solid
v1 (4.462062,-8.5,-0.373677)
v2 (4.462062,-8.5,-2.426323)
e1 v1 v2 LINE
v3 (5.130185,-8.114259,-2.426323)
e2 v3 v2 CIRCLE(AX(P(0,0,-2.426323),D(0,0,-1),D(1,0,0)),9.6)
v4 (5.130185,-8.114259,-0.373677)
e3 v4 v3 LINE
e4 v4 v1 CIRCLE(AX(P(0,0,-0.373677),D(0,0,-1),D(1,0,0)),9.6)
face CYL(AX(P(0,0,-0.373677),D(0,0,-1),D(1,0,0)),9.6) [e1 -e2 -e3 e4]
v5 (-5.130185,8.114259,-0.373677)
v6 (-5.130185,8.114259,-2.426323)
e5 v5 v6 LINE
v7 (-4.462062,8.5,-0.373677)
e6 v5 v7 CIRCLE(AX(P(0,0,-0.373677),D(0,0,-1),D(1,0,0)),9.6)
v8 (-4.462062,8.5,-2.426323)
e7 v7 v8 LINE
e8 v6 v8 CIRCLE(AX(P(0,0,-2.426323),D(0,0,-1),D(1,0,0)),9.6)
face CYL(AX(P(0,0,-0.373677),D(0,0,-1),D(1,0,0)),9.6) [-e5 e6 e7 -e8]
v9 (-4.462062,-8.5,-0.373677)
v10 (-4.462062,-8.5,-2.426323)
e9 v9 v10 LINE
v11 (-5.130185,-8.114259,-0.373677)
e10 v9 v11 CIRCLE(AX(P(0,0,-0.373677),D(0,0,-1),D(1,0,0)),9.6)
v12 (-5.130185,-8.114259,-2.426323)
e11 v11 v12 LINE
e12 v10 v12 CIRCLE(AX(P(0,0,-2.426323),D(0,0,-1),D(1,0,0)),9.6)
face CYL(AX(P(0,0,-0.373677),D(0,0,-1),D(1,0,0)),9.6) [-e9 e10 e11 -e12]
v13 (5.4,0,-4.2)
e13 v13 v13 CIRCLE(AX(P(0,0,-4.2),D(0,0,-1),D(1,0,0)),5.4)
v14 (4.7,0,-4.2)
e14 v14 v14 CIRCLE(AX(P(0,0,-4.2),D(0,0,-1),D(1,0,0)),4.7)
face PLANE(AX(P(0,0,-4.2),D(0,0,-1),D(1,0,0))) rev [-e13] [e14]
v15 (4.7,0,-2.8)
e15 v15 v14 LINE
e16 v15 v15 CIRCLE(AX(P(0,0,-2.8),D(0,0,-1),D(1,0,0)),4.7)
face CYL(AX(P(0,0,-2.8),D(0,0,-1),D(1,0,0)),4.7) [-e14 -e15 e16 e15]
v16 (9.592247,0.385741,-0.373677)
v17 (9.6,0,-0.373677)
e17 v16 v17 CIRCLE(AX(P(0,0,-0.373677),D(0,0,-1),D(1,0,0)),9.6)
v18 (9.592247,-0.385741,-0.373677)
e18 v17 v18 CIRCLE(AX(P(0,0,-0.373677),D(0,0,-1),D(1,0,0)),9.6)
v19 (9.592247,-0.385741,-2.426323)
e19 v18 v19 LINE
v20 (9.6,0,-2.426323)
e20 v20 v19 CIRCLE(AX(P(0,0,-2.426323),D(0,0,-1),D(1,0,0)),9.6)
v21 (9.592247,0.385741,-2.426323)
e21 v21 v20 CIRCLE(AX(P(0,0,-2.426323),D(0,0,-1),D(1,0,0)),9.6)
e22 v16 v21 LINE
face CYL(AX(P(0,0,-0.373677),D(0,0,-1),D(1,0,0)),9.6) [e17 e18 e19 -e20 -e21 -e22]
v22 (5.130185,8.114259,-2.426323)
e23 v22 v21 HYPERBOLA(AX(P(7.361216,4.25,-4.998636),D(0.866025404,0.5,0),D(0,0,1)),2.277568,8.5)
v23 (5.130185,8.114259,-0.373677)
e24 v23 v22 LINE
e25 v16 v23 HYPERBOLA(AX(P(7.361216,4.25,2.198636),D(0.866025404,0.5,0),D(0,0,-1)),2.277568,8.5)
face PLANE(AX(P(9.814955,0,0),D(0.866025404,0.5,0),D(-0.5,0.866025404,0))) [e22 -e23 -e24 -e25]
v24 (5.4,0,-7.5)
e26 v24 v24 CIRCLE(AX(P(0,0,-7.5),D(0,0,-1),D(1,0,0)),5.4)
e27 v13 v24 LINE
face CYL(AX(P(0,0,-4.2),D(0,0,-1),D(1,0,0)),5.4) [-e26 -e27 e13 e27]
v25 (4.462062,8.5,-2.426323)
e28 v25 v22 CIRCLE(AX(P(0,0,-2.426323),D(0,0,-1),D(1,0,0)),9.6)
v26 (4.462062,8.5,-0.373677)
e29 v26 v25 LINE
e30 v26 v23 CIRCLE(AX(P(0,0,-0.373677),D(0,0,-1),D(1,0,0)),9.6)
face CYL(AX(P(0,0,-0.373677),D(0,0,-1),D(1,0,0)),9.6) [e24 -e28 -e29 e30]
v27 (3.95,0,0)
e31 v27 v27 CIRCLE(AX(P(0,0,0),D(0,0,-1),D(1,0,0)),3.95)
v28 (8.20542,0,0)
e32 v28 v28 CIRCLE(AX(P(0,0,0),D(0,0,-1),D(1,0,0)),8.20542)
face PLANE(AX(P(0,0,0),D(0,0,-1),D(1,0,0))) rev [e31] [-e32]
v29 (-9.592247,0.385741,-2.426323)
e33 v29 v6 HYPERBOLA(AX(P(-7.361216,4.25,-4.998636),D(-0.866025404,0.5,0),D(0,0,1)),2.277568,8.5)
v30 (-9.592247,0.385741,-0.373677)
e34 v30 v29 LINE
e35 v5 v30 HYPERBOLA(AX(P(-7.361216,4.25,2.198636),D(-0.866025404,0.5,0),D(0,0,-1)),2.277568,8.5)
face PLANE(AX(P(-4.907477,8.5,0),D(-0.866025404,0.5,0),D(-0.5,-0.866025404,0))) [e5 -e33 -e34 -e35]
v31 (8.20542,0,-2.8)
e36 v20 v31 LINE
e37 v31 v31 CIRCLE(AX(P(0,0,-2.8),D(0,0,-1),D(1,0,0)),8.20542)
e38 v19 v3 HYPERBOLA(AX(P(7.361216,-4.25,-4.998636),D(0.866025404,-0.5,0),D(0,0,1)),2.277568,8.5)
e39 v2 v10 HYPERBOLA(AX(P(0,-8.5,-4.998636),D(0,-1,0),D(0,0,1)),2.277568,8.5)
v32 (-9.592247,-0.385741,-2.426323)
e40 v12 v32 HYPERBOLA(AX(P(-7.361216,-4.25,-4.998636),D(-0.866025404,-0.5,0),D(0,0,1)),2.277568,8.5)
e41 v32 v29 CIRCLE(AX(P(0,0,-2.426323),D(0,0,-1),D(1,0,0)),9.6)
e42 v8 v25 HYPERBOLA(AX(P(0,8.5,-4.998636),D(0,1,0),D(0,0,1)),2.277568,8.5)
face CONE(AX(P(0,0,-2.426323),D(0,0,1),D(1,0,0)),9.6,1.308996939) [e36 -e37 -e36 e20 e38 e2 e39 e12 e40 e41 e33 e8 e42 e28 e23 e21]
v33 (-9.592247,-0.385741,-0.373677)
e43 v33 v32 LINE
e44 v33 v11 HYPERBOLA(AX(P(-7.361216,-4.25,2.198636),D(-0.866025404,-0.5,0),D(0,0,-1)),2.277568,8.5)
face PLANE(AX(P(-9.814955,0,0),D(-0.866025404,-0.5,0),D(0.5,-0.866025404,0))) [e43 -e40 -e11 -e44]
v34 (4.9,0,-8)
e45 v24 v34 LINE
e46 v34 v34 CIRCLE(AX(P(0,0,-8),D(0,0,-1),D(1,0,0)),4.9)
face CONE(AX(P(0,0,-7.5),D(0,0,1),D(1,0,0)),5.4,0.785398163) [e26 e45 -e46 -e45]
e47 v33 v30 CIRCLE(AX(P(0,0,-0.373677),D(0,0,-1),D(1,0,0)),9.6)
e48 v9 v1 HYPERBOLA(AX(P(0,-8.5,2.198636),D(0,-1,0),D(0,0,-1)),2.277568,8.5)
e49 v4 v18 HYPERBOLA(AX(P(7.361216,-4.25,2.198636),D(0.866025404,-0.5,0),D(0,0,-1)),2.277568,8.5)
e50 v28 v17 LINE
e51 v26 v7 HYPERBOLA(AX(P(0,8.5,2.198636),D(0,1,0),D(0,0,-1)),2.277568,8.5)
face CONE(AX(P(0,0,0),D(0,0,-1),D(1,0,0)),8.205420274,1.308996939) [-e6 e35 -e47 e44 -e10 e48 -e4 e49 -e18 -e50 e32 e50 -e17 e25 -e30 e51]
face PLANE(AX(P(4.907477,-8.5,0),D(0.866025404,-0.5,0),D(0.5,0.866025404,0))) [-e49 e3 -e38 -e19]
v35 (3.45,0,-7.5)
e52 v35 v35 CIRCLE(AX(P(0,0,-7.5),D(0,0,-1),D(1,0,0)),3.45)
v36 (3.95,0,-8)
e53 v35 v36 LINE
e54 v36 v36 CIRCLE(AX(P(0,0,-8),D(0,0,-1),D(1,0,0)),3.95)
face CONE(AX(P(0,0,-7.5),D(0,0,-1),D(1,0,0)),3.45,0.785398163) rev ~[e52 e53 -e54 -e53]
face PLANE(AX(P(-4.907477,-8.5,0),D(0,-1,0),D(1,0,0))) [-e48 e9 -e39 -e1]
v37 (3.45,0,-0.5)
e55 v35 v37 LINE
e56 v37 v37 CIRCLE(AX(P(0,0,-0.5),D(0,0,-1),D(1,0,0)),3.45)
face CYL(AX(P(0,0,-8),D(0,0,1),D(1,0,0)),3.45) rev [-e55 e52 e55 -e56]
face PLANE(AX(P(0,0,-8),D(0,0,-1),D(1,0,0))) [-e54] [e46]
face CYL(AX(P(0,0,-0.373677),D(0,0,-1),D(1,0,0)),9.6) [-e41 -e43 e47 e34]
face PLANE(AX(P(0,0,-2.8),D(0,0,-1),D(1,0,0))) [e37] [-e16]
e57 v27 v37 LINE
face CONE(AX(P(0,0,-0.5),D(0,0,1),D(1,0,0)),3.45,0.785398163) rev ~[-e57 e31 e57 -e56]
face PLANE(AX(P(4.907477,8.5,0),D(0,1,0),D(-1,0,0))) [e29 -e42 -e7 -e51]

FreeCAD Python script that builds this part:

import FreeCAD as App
import Part
import Sketcher
from FreeCAD import Vector
Q = App.Units.Quantity


def edges_at(feature, points):
    """Names of the edges that pass closest to the given points."""
    edges = feature.Shape.Edges
    near = lambda p: min(range(len(edges)), key=lambda i: edges[i].distToShape(Part.Vertex(*p))[0])
    return sorted({f"Edge{near(p) + 1}" for p in points})

doc = App.newDocument("Part")
body = doc.addObject("PartDesign::Body", "Body")

# Sketch on YZ plane
sketch1 = body.newObject("Sketcher::SketchObject", "Sketch")
sketch1.AttachmentSupport = (doc.getObject("YZ_Plane"), [""])
sketch1.MapMode = "FlatFace"
sketch1.addGeometry([
    Part.LineSegment(Vector(8.2, 0, 0), Vector(3.5, 0, 0)),  # 0
    Part.LineSegment(Vector(3.5, 0, 0), Vector(3.5, -8, 0)),  # 1
    Part.LineSegment(Vector(3.5, -8, 0), Vector(4.9, -8, 0)),  # 2
    Part.LineSegment(Vector(4.9, -8, 0), Vector(5.4, -7.5, 0)),  # 3
    Part.LineSegment(Vector(5.4, -7.5, 0), Vector(5.4, -4.2, 0)),  # 4
    Part.LineSegment(Vector(5.4, -4.2, 0), Vector(4.7, -4.2, 0)),  # 5
    Part.LineSegment(Vector(4.7, -4.2, 0), Vector(4.7, -2.8, 0)),  # 6
    Part.LineSegment(Vector(4.7, -2.8, 0), Vector(8.2, -2.8, 0)),  # 7
    Part.LineSegment(Vector(8.2, -2.8, 0), Vector(9.6, -2.4, 0)),  # 8
    Part.LineSegment(Vector(9.6, -2.4, 0), Vector(9.6, -0.4, 0)),  # 9
    Part.LineSegment(Vector(9.6, -0.4, 0), Vector(8.2, 0, 0)),  # 10
], False)
sketch1.addConstraint([
    Sketcher.Constraint("Coincident", 0, 2, 1, 1),
    Sketcher.Constraint("Coincident", 1, 2, 2, 1),
    Sketcher.Constraint("Coincident", 2, 2, 3, 1),
    Sketcher.Constraint("Coincident", 3, 2, 4, 1),
    Sketcher.Constraint("Coincident", 4, 2, 5, 1),
    Sketcher.Constraint("Coincident", 5, 2, 6, 1),
    Sketcher.Constraint("Coincident", 6, 2, 7, 1),
    Sketcher.Constraint("Coincident", 7, 2, 8, 1),
    Sketcher.Constraint("Coincident", 8, 2, 9, 1),
    Sketcher.Constraint("Coincident", 9, 2, 10, 1),
    Sketcher.Constraint("Coincident", 10, 2, 0, 1),
    Sketcher.Constraint("Horizontal", 0),
    Sketcher.Constraint("Vertical", 1),
    Sketcher.Constraint("Horizontal", 2),
    Sketcher.Constraint("Vertical", 4),
    Sketcher.Constraint("Horizontal", 5),
    Sketcher.Constraint("Vertical", 6),
    Sketcher.Constraint("Horizontal", 7),
    Sketcher.Constraint("Vertical", 9),
    Sketcher.Constraint("PointOnObject", 0, 2, -1),
    Sketcher.Constraint("Vertical", 7, 2, 10, 2),
    Sketcher.Constraint("Equal", 8, 10),
    Sketcher.Constraint("DistanceY", 1, 2, 1, 1, 8.0),
    Sketcher.Constraint("Angle", 3, Q("45 deg")),
    Sketcher.Constraint("Angle", 8, Q("15 deg")),
    Sketcher.Constraint("DistanceX", 5, 2, 5, 1, 0.7),
    Sketcher.Constraint("DistanceY", 4, 1, 4, 2, 3.3),
    Sketcher.Constraint("DistanceY", 6, 1, 6, 2, 1.4),
    Sketcher.Constraint("DistanceX", 2, 1, 2, 2, 1.45),
    Sketcher.Constraint("DistanceX", -1, 1, 2, 2, 4.9),
    Sketcher.Constraint("DistanceX", -1, 1, 3, 2, 5.4),
    Sketcher.Constraint("DistanceX", -1, 1, 8, 2, 9.6),
    Sketcher.Constraint("DistanceX", 0, 2, 0, 1, 4.75542),
])
revolution = body.newObject("PartDesign::Revolution", "Revolution")
revolution.Profile = sketch1
revolution.ReferenceAxis = (sketch1, ["V_Axis"])
revolution.Angle = 360

# Sketch on XY plane
sketch2 = body.newObject("Sketcher::SketchObject", "Sketch001")
sketch2.AttachmentSupport = (doc.getObject("XY_Plane"), [""])
sketch2.MapMode = "FlatFace"
sketch2.addGeometry([
    Part.LineSegment(Vector(-13, 13, 0), Vector(-13, -13, 0)),  # 0
    Part.LineSegment(Vector(-13, -13, 0), Vector(13, -13, 0)),  # 1
    Part.LineSegment(Vector(13, -13, 0), Vector(13, 13, 0)),  # 2
    Part.LineSegment(Vector(13, 13, 0), Vector(-13, 13, 0)),  # 3
    Part.LineSegment(Vector(5, 8, 0), Vector(10, 0, 0)),  # 4
    Part.LineSegment(Vector(10, 0, 0), Vector(5, -8, 0)),  # 5
    Part.LineSegment(Vector(5, -8, 0), Vector(-5, -8, 0)),  # 6
    Part.LineSegment(Vector(-5, -8, 0), Vector(-10, 0, 0)),  # 7
    Part.LineSegment(Vector(-10, 0, 0), Vector(-5, 8, 0)),  # 8
    Part.LineSegment(Vector(-5, 8, 0), Vector(5, 8, 0)),  # 9
], False)
sketch2.addConstraint([
    Sketcher.Constraint("Coincident", 0, 2, 1, 1),
    Sketcher.Constraint("Coincident", 1, 2, 2, 1),
    Sketcher.Constraint("Coincident", 2, 2, 3, 1),
    Sketcher.Constraint("Coincident", 3, 2, 0, 1),
    Sketcher.Constraint("Coincident", 4, 2, 5, 1),
    Sketcher.Constraint("Coincident", 5, 2, 6, 1),
    Sketcher.Constraint("Coincident", 6, 2, 7, 1),
    Sketcher.Constraint("Coincident", 7, 2, 8, 1),
    Sketcher.Constraint("Coincident", 8, 2, 9, 1),
    Sketcher.Constraint("Coincident", 9, 2, 4, 1),
    Sketcher.Constraint("Vertical", 0),
    Sketcher.Constraint("Horizontal", 1),
    Sketcher.Constraint("Vertical", 2),
    Sketcher.Constraint("Horizontal", 3),
    Sketcher.Constraint("Horizontal", 6),
    Sketcher.Constraint("Horizontal", 9),
    Sketcher.Constraint("Symmetric", 0, 2, 2, 2, -1, 1),
    Sketcher.Constraint("Symmetric", 4, 2, 7, 2, -1, 1),
    Sketcher.Constraint("Symmetric", 5, 2, 8, 2, -1, 1),
    Sketcher.Constraint("PointOnObject", 4, 2, -1),
    Sketcher.Constraint("Parallel", 4, 7),
    Sketcher.Constraint("Vertical", 6, 2, 8, 2),
    Sketcher.Constraint("Equal", 3, 0),
    Sketcher.Constraint("Angle", 4, Q("-60 deg")),
    Sketcher.Constraint("DistanceY", 6, 2, 8, 2, 17.0),
    Sketcher.Constraint("DistanceX", 1, 1, 1, 2, 26.862),
    Sketcher.Constraint("DistanceX", 6, 2, 6, 1, 9.814955),
])
pocket1 = body.newObject("PartDesign::Pocket", "Pocket")
pocket1.Profile = sketch2
pocket1.Length = 10
doc.recompute()

chamfer = body.newObject("PartDesign::Chamfer", "Chamfer")
chamfer.Base = (pocket1, edges_at(pocket1, [(-3.45, 0, 0), (-3.45, 0, -8)]))
chamfer.Size = 0.5

doc.recompute()
